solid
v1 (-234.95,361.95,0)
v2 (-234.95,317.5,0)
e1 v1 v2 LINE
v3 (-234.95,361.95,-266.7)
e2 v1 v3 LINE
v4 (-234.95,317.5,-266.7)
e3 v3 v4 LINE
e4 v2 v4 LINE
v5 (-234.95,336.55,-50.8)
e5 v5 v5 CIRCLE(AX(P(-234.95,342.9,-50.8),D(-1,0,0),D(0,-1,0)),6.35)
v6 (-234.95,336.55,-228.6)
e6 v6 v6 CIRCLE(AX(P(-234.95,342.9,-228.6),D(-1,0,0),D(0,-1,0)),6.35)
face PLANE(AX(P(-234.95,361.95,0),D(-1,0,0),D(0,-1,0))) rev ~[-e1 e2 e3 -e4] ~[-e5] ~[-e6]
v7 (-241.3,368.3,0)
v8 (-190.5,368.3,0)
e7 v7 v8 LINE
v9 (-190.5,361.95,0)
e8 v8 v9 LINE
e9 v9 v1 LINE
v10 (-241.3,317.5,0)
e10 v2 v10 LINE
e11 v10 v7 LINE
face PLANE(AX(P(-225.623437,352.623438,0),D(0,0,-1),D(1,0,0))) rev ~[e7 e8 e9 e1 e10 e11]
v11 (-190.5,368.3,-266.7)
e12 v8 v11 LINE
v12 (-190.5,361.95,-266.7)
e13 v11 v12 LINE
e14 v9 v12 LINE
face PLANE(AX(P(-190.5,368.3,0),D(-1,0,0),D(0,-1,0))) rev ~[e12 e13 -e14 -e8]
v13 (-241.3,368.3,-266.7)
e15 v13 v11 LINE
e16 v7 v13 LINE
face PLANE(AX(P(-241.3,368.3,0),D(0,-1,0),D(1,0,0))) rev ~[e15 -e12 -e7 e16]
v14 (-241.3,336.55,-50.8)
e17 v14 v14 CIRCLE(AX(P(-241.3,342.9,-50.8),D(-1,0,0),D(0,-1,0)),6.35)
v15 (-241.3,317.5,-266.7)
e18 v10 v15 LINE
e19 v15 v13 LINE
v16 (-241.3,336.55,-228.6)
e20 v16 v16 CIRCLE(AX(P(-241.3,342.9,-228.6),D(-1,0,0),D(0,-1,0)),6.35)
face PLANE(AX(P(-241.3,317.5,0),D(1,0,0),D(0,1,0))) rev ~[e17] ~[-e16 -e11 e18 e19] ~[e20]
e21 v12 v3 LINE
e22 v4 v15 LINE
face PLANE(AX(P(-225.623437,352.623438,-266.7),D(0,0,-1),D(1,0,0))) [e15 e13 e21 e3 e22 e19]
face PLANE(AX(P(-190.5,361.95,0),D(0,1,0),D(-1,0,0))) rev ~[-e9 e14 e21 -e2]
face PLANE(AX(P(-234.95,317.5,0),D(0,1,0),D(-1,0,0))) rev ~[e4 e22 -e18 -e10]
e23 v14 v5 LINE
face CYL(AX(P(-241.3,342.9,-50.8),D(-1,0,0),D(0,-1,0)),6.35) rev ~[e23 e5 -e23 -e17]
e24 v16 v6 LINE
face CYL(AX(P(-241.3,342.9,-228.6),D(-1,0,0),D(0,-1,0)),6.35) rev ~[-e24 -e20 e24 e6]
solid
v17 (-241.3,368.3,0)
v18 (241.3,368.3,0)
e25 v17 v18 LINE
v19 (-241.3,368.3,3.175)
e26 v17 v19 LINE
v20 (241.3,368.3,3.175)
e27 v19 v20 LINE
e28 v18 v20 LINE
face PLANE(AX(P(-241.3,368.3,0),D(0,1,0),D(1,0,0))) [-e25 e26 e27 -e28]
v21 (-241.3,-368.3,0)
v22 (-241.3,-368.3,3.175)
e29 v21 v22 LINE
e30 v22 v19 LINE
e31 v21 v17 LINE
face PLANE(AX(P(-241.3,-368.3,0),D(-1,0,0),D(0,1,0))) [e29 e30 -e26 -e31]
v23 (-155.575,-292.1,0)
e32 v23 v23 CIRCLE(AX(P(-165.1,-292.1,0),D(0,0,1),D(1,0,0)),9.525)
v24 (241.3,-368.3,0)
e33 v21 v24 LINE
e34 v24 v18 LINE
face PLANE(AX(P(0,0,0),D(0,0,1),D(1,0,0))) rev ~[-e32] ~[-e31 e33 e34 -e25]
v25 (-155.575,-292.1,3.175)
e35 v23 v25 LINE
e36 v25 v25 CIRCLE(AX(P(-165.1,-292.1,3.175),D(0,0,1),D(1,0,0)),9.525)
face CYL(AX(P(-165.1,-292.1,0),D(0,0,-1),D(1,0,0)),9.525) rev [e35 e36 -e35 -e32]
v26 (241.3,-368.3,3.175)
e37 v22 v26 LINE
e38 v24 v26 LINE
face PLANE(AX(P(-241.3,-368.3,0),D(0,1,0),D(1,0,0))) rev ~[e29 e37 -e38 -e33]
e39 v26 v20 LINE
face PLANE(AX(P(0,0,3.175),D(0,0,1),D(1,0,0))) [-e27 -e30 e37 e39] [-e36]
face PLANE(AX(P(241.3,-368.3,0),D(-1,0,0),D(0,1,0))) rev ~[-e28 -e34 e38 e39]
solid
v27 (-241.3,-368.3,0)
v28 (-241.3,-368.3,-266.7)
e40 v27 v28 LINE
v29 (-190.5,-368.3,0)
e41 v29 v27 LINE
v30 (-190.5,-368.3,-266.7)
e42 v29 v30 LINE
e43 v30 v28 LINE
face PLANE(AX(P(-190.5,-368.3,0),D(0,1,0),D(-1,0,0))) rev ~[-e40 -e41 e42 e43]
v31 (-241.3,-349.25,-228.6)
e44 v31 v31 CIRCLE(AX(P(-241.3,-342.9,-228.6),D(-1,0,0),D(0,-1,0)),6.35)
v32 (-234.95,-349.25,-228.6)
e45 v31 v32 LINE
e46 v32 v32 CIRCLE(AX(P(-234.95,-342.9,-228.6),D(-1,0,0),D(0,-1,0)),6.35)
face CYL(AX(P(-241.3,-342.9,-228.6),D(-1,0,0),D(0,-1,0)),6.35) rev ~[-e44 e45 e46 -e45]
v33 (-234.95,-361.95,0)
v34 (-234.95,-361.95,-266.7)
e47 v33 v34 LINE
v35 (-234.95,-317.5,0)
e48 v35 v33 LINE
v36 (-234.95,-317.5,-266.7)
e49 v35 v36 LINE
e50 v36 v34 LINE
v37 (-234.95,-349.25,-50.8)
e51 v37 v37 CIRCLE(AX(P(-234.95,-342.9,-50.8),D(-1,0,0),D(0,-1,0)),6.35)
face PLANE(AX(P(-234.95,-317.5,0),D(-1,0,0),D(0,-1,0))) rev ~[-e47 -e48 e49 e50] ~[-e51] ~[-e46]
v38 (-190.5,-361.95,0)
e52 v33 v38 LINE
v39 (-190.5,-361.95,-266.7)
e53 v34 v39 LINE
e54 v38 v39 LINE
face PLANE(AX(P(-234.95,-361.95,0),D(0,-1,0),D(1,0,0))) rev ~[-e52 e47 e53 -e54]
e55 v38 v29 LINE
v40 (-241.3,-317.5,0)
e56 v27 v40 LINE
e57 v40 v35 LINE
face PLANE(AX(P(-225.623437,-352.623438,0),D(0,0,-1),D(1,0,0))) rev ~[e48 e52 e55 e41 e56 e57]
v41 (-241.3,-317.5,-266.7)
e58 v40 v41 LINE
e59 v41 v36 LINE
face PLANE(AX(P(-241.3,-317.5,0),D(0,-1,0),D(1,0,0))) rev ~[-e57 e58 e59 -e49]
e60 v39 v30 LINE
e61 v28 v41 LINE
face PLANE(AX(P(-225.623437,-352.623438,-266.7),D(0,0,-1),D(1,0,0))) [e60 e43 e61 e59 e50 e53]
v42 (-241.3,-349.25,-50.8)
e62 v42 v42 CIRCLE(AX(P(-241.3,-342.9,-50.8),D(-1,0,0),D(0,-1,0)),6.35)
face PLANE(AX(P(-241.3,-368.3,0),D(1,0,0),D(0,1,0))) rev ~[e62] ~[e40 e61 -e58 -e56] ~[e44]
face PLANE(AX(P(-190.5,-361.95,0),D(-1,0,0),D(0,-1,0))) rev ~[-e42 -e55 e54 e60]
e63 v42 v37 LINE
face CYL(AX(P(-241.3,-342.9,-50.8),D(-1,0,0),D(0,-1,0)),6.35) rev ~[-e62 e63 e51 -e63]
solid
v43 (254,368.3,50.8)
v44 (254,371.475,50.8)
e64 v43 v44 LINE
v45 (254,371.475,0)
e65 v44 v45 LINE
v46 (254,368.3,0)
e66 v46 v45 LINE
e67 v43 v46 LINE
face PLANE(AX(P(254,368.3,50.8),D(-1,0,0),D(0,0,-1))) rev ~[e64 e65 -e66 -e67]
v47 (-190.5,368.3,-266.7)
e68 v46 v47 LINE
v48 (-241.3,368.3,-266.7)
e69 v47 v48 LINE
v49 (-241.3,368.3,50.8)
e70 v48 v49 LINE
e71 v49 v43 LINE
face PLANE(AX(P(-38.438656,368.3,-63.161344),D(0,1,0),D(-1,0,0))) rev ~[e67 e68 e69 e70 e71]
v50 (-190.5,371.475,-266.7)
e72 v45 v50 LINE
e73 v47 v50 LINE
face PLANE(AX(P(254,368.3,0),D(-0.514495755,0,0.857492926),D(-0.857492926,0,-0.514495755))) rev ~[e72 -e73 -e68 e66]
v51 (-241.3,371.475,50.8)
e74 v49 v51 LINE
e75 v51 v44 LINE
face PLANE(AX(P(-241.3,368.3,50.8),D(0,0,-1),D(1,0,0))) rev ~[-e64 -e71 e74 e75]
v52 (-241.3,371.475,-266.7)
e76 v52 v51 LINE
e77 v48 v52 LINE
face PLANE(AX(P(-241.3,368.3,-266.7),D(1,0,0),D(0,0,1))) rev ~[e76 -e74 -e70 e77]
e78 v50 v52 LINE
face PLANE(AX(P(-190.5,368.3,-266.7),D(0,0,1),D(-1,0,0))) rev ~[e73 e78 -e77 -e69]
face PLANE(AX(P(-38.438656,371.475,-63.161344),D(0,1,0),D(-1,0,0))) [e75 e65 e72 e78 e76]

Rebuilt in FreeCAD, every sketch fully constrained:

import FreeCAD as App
import Part
import Sketcher
Q = App.Units.Quantity


def add_polygon(sketch, points):
    """Adds a closed chain of lines whose ends are joined by coincident constraints."""
    first, n = sketch.GeometryCount, len(points)
    for a, b in zip(points, points[1:] + points[:1]):
        sketch.addGeometry(Part.LineSegment(App.Vector(*a, 0), App.Vector(*b, 0)), False)
    for i in range(n):
        sketch.addConstraint(Sketcher.Constraint("Coincident", first + i, 2, first + (i + 1) % n, 1))

doc = App.newDocument("Part")
params = doc.addObject("Spreadsheet::Sheet", "Params")
for row, (alias, value) in enumerate([
    ("sketch1_diameter", "0.75 in"),
    ("sketch1_width", "19 in"),
    ("sketch1_height", "29 in"),
    ("pad1_length", "0.125 in"),
    ("sketch2_width", "2 in"),
    ("sketch2_width2", "1.75 in"),
    ("pad2_length", "10.5 in"),
    ("sketch3_diameter", "0.5 in"),
    ("pocket1_length", "1 in"),
    ("sketch4_width", "2 in"),
    ("sketch4_width2", "19.5 in"),
    ("sketch4_height", "12.5 in"),
    ("pad3_length", "0.125 in"),
], start=1):
    params.set(f"A{row}", alias)
    params.set(f"B{row}", "=" + value)
    params.setAlias(f"B{row}", alias)

body = doc.addObject("PartDesign::Body", "Body")

# Sketch on XY plane
sketch1 = doc.addObject("Sketcher::SketchObject", "Sketch")
body.addObject(sketch1)
sketch1.AttachmentSupport = (doc.XY_Plane, [""])
sketch1.MapMode = "FlatFace"
add_polygon(sketch1, [(-241.3, 368.3), (-241.3, -368.3), (241.3, -368.3), (241.3, 368.3)])  # lines 0-3
sketch1.addGeometry(Part.Circle(App.Vector(-165.1, -292.1, 0), App.Vector(0, 0, 1), 9.525), False)  # 4
sketch1.addConstraint([
    Sketcher.Constraint("Vertical", 0),
    Sketcher.Constraint("Horizontal", 1),
    Sketcher.Constraint("Vertical", 2),
    Sketcher.Constraint("Horizontal", 3),
    Sketcher.Constraint("Symmetric", 0, 2, 2, 2, -1, 1),
    Sketcher.Constraint("Diameter", 4, Q("0.75 in")),
    Sketcher.Constraint("DistanceX", 1, 1, 1, 2, Q("19 in")),
    Sketcher.Constraint("DistanceY", 0, 2, 0, 1, Q("29 in")),
    Sketcher.Constraint("DistanceX", 0, 2, 4, 3, Q("3 in")),
    Sketcher.Constraint("DistanceY", 0, 2, 4, 3, Q("3 in")),
])
sketch1.setExpression("Constraints[9]", "Params.sketch1_diameter")
sketch1.setExpression("Constraints[10]", "Params.sketch1_width")
sketch1.setExpression("Constraints[11]", "Params.sketch1_height")
pad1 = doc.addObject("PartDesign::Pad", "Pad")
body.addObject(pad1)
pad1.Profile = sketch1
pad1.setExpression("Length", "Params.pad1_length")
body2 = doc.addObject("PartDesign::Body", "Body001")
body2.AllowCompound = True

# Sketch on XY plane
sketch2 = doc.addObject("Sketcher::SketchObject", "Sketch001")
body2.addObject(sketch2)
sketch2.AttachmentSupport = (doc.getObject("XY_Plane001"), [""])
sketch2.MapMode = "FlatFace"
add_polygon(sketch2, [(-241.3, 317.5), (-241.3, 368.3), (-190.5, 368.3), (-190.5, 361.95), (-234.95, 361.95), (-234.95, 317.5)])  # lines 0-5
add_polygon(sketch2, [(-190.5, -368.3), (-241.3, -368.3), (-241.3, -317.5), (-234.95, -317.5), (-234.95, -361.95), (-190.5, -361.95)])  # lines 6-11
sketch2.addConstraint([
    Sketcher.Constraint("Vertical", 0),
    Sketcher.Constraint("Horizontal", 1),
    Sketcher.Constraint("Vertical", 2),
    Sketcher.Constraint("Horizontal", 3),
    Sketcher.Constraint("Vertical", 4),
    Sketcher.Constraint("Horizontal", 5),
    Sketcher.Constraint("Horizontal", 6),
    Sketcher.Constraint("Vertical", 7),
    Sketcher.Constraint("Horizontal", 8),
    Sketcher.Constraint("Vertical", 9),
    Sketcher.Constraint("Horizontal", 10),
    Sketcher.Constraint("Vertical", 11),
    Sketcher.Constraint("Symmetric", 0, 2, 6, 2, -1),
    Sketcher.Constraint("Symmetric", 4, 2, 8, 2, -1),
    Sketcher.Constraint("Symmetric", 2, 2, 10, 2, -1),
    Sketcher.Constraint("Equal", 6, 0),
    Sketcher.Constraint("Equal", 8, 2),
    Sketcher.Constraint("DistanceX", 1, 1, 1, 2, Q("2 in")),
    Sketcher.Constraint("DistanceY", 6, 2, 5, 2, Q("27 in")),
    Sketcher.Constraint("DistanceX", 3, 2, 3, 1, Q("1.75 in")),
    Sketcher.Constraint("DistanceX", 0, 2, -1, 1, Q("9.5 in")),
])
sketch2.setExpression("Constraints[29]", "Params.sketch2_width")
sketch2.setExpression("Constraints[31]", "Params.sketch2_width2")
pad2 = doc.addObject("PartDesign::Pad", "Pad001")
body2.addObject(pad2)
pad2.Profile = sketch2
pad2.setExpression("Length", "Params.pad2_length")
pad2.Reversed = True

# Sketch on YZ plane
sketch3 = doc.addObject("Sketcher::SketchObject", "Sketch002")
body2.addObject(sketch3)
sketch3.AttachmentSupport = (doc.getObject("YZ_Plane001"), [""])
sketch3.MapMode = "FlatFace"
sketch3.AttachmentOffset = App.Placement(App.Vector(0, 0, -9.5 * 25.4), App.Rotation())
sketch3.addGeometry([
    Part.Circle(App.Vector(342.9, -50.8, 0), App.Vector(0, 0, 1), 6.35),
    Part.Circle(App.Vector(342.9, -228.6, 0), App.Vector(0, 0, 1), 6.35),
    Part.Circle(App.Vector(-342.9, -228.6, 0), App.Vector(0, 0, 1), 6.35),
    Part.Circle(App.Vector(-342.9, -50.8, 0), App.Vector(0, 0, 1), 6.35),
], False)
sketch3.addConstraint([
    Sketcher.Constraint("Equal", 0, 1),
    Sketcher.Constraint("Equal", 1, 2),
    Sketcher.Constraint("Equal", 2, 3),
    Sketcher.Constraint("Symmetric", 1, 3, 2, 3, -2),
    Sketcher.Constraint("Symmetric", 0, 3, 3, 3, -2),
    Sketcher.Constraint("Vertical", 0, 3, 1, 3),
    Sketcher.Constraint("Diameter", 0, Q("0.5 in")),
    Sketcher.Constraint("DistanceY", 0, 3, -1, 1, Q("2 in")),
    Sketcher.Constraint("DistanceY", 1, 3, -1, 1, Q("9 in")),
    Sketcher.Constraint("DistanceX", 2, 3, 1, 3, Q("27 in")),
])
sketch3.setExpression("Constraints[6]", "Params.sketch3_diameter")
pocket1 = doc.addObject("PartDesign::Pocket", "Pocket")
body2.addObject(pocket1)
pocket1.Profile = sketch3
pocket1.setExpression("Length", "Params.pocket1_length")
pocket1.Reversed = True
body3 = doc.addObject("PartDesign::Body", "Body002")

# Sketch on XZ plane
sketch4 = doc.addObject("Sketcher::SketchObject", "Sketch003")
body3.addObject(sketch4)
sketch4.AttachmentSupport = (doc.getObject("XZ_Plane002"), [""])
sketch4.MapMode = "FlatFace"
sketch4.AttachmentOffset = App.Placement(App.Vector(0, 0, -14.5 * 25.4), App.Rotation())
add_polygon(sketch4, [(-190.5, -266.7), (-241.3, -266.7), (-241.3, 50.8), (254, 50.8), (254, 0)])  # lines 0-4
sketch4.addConstraint([
    Sketcher.Constraint("Horizontal", 0),
    Sketcher.Constraint("Vertical", 1),
    Sketcher.Constraint("Horizontal", 2),
    Sketcher.Constraint("Vertical", 3),
    Sketcher.Constraint("PointOnObject", 3, 2, -1),
    Sketcher.Constraint("Equal", 0, 3),
    Sketcher.Constraint("DistanceX", 0, 2, 0, 1, Q("2 in")),
    Sketcher.Constraint("DistanceX", 2, 1, 2, 2, Q("19.5 in")),
    Sketcher.Constraint("DistanceY", 1, 1, 1, 2, Q("12.5 in")),
    Sketcher.Constraint("DistanceX", -1, 1, 2, 2, Q("10 in")),
])
sketch4.setExpression("Constraints[11]", "Params.sketch4_width")
sketch4.setExpression("Constraints[12]", "Params.sketch4_width2")
sketch4.setExpression("Constraints[13]", "Params.sketch4_height")
pad3 = doc.addObject("PartDesign::Pad", "Pad002")
body3.addObject(pad3)
pad3.Profile = sketch4
pad3.setExpression("Length", "Params.pad3_length")
pad3.Reversed = True

doc.recompute()
